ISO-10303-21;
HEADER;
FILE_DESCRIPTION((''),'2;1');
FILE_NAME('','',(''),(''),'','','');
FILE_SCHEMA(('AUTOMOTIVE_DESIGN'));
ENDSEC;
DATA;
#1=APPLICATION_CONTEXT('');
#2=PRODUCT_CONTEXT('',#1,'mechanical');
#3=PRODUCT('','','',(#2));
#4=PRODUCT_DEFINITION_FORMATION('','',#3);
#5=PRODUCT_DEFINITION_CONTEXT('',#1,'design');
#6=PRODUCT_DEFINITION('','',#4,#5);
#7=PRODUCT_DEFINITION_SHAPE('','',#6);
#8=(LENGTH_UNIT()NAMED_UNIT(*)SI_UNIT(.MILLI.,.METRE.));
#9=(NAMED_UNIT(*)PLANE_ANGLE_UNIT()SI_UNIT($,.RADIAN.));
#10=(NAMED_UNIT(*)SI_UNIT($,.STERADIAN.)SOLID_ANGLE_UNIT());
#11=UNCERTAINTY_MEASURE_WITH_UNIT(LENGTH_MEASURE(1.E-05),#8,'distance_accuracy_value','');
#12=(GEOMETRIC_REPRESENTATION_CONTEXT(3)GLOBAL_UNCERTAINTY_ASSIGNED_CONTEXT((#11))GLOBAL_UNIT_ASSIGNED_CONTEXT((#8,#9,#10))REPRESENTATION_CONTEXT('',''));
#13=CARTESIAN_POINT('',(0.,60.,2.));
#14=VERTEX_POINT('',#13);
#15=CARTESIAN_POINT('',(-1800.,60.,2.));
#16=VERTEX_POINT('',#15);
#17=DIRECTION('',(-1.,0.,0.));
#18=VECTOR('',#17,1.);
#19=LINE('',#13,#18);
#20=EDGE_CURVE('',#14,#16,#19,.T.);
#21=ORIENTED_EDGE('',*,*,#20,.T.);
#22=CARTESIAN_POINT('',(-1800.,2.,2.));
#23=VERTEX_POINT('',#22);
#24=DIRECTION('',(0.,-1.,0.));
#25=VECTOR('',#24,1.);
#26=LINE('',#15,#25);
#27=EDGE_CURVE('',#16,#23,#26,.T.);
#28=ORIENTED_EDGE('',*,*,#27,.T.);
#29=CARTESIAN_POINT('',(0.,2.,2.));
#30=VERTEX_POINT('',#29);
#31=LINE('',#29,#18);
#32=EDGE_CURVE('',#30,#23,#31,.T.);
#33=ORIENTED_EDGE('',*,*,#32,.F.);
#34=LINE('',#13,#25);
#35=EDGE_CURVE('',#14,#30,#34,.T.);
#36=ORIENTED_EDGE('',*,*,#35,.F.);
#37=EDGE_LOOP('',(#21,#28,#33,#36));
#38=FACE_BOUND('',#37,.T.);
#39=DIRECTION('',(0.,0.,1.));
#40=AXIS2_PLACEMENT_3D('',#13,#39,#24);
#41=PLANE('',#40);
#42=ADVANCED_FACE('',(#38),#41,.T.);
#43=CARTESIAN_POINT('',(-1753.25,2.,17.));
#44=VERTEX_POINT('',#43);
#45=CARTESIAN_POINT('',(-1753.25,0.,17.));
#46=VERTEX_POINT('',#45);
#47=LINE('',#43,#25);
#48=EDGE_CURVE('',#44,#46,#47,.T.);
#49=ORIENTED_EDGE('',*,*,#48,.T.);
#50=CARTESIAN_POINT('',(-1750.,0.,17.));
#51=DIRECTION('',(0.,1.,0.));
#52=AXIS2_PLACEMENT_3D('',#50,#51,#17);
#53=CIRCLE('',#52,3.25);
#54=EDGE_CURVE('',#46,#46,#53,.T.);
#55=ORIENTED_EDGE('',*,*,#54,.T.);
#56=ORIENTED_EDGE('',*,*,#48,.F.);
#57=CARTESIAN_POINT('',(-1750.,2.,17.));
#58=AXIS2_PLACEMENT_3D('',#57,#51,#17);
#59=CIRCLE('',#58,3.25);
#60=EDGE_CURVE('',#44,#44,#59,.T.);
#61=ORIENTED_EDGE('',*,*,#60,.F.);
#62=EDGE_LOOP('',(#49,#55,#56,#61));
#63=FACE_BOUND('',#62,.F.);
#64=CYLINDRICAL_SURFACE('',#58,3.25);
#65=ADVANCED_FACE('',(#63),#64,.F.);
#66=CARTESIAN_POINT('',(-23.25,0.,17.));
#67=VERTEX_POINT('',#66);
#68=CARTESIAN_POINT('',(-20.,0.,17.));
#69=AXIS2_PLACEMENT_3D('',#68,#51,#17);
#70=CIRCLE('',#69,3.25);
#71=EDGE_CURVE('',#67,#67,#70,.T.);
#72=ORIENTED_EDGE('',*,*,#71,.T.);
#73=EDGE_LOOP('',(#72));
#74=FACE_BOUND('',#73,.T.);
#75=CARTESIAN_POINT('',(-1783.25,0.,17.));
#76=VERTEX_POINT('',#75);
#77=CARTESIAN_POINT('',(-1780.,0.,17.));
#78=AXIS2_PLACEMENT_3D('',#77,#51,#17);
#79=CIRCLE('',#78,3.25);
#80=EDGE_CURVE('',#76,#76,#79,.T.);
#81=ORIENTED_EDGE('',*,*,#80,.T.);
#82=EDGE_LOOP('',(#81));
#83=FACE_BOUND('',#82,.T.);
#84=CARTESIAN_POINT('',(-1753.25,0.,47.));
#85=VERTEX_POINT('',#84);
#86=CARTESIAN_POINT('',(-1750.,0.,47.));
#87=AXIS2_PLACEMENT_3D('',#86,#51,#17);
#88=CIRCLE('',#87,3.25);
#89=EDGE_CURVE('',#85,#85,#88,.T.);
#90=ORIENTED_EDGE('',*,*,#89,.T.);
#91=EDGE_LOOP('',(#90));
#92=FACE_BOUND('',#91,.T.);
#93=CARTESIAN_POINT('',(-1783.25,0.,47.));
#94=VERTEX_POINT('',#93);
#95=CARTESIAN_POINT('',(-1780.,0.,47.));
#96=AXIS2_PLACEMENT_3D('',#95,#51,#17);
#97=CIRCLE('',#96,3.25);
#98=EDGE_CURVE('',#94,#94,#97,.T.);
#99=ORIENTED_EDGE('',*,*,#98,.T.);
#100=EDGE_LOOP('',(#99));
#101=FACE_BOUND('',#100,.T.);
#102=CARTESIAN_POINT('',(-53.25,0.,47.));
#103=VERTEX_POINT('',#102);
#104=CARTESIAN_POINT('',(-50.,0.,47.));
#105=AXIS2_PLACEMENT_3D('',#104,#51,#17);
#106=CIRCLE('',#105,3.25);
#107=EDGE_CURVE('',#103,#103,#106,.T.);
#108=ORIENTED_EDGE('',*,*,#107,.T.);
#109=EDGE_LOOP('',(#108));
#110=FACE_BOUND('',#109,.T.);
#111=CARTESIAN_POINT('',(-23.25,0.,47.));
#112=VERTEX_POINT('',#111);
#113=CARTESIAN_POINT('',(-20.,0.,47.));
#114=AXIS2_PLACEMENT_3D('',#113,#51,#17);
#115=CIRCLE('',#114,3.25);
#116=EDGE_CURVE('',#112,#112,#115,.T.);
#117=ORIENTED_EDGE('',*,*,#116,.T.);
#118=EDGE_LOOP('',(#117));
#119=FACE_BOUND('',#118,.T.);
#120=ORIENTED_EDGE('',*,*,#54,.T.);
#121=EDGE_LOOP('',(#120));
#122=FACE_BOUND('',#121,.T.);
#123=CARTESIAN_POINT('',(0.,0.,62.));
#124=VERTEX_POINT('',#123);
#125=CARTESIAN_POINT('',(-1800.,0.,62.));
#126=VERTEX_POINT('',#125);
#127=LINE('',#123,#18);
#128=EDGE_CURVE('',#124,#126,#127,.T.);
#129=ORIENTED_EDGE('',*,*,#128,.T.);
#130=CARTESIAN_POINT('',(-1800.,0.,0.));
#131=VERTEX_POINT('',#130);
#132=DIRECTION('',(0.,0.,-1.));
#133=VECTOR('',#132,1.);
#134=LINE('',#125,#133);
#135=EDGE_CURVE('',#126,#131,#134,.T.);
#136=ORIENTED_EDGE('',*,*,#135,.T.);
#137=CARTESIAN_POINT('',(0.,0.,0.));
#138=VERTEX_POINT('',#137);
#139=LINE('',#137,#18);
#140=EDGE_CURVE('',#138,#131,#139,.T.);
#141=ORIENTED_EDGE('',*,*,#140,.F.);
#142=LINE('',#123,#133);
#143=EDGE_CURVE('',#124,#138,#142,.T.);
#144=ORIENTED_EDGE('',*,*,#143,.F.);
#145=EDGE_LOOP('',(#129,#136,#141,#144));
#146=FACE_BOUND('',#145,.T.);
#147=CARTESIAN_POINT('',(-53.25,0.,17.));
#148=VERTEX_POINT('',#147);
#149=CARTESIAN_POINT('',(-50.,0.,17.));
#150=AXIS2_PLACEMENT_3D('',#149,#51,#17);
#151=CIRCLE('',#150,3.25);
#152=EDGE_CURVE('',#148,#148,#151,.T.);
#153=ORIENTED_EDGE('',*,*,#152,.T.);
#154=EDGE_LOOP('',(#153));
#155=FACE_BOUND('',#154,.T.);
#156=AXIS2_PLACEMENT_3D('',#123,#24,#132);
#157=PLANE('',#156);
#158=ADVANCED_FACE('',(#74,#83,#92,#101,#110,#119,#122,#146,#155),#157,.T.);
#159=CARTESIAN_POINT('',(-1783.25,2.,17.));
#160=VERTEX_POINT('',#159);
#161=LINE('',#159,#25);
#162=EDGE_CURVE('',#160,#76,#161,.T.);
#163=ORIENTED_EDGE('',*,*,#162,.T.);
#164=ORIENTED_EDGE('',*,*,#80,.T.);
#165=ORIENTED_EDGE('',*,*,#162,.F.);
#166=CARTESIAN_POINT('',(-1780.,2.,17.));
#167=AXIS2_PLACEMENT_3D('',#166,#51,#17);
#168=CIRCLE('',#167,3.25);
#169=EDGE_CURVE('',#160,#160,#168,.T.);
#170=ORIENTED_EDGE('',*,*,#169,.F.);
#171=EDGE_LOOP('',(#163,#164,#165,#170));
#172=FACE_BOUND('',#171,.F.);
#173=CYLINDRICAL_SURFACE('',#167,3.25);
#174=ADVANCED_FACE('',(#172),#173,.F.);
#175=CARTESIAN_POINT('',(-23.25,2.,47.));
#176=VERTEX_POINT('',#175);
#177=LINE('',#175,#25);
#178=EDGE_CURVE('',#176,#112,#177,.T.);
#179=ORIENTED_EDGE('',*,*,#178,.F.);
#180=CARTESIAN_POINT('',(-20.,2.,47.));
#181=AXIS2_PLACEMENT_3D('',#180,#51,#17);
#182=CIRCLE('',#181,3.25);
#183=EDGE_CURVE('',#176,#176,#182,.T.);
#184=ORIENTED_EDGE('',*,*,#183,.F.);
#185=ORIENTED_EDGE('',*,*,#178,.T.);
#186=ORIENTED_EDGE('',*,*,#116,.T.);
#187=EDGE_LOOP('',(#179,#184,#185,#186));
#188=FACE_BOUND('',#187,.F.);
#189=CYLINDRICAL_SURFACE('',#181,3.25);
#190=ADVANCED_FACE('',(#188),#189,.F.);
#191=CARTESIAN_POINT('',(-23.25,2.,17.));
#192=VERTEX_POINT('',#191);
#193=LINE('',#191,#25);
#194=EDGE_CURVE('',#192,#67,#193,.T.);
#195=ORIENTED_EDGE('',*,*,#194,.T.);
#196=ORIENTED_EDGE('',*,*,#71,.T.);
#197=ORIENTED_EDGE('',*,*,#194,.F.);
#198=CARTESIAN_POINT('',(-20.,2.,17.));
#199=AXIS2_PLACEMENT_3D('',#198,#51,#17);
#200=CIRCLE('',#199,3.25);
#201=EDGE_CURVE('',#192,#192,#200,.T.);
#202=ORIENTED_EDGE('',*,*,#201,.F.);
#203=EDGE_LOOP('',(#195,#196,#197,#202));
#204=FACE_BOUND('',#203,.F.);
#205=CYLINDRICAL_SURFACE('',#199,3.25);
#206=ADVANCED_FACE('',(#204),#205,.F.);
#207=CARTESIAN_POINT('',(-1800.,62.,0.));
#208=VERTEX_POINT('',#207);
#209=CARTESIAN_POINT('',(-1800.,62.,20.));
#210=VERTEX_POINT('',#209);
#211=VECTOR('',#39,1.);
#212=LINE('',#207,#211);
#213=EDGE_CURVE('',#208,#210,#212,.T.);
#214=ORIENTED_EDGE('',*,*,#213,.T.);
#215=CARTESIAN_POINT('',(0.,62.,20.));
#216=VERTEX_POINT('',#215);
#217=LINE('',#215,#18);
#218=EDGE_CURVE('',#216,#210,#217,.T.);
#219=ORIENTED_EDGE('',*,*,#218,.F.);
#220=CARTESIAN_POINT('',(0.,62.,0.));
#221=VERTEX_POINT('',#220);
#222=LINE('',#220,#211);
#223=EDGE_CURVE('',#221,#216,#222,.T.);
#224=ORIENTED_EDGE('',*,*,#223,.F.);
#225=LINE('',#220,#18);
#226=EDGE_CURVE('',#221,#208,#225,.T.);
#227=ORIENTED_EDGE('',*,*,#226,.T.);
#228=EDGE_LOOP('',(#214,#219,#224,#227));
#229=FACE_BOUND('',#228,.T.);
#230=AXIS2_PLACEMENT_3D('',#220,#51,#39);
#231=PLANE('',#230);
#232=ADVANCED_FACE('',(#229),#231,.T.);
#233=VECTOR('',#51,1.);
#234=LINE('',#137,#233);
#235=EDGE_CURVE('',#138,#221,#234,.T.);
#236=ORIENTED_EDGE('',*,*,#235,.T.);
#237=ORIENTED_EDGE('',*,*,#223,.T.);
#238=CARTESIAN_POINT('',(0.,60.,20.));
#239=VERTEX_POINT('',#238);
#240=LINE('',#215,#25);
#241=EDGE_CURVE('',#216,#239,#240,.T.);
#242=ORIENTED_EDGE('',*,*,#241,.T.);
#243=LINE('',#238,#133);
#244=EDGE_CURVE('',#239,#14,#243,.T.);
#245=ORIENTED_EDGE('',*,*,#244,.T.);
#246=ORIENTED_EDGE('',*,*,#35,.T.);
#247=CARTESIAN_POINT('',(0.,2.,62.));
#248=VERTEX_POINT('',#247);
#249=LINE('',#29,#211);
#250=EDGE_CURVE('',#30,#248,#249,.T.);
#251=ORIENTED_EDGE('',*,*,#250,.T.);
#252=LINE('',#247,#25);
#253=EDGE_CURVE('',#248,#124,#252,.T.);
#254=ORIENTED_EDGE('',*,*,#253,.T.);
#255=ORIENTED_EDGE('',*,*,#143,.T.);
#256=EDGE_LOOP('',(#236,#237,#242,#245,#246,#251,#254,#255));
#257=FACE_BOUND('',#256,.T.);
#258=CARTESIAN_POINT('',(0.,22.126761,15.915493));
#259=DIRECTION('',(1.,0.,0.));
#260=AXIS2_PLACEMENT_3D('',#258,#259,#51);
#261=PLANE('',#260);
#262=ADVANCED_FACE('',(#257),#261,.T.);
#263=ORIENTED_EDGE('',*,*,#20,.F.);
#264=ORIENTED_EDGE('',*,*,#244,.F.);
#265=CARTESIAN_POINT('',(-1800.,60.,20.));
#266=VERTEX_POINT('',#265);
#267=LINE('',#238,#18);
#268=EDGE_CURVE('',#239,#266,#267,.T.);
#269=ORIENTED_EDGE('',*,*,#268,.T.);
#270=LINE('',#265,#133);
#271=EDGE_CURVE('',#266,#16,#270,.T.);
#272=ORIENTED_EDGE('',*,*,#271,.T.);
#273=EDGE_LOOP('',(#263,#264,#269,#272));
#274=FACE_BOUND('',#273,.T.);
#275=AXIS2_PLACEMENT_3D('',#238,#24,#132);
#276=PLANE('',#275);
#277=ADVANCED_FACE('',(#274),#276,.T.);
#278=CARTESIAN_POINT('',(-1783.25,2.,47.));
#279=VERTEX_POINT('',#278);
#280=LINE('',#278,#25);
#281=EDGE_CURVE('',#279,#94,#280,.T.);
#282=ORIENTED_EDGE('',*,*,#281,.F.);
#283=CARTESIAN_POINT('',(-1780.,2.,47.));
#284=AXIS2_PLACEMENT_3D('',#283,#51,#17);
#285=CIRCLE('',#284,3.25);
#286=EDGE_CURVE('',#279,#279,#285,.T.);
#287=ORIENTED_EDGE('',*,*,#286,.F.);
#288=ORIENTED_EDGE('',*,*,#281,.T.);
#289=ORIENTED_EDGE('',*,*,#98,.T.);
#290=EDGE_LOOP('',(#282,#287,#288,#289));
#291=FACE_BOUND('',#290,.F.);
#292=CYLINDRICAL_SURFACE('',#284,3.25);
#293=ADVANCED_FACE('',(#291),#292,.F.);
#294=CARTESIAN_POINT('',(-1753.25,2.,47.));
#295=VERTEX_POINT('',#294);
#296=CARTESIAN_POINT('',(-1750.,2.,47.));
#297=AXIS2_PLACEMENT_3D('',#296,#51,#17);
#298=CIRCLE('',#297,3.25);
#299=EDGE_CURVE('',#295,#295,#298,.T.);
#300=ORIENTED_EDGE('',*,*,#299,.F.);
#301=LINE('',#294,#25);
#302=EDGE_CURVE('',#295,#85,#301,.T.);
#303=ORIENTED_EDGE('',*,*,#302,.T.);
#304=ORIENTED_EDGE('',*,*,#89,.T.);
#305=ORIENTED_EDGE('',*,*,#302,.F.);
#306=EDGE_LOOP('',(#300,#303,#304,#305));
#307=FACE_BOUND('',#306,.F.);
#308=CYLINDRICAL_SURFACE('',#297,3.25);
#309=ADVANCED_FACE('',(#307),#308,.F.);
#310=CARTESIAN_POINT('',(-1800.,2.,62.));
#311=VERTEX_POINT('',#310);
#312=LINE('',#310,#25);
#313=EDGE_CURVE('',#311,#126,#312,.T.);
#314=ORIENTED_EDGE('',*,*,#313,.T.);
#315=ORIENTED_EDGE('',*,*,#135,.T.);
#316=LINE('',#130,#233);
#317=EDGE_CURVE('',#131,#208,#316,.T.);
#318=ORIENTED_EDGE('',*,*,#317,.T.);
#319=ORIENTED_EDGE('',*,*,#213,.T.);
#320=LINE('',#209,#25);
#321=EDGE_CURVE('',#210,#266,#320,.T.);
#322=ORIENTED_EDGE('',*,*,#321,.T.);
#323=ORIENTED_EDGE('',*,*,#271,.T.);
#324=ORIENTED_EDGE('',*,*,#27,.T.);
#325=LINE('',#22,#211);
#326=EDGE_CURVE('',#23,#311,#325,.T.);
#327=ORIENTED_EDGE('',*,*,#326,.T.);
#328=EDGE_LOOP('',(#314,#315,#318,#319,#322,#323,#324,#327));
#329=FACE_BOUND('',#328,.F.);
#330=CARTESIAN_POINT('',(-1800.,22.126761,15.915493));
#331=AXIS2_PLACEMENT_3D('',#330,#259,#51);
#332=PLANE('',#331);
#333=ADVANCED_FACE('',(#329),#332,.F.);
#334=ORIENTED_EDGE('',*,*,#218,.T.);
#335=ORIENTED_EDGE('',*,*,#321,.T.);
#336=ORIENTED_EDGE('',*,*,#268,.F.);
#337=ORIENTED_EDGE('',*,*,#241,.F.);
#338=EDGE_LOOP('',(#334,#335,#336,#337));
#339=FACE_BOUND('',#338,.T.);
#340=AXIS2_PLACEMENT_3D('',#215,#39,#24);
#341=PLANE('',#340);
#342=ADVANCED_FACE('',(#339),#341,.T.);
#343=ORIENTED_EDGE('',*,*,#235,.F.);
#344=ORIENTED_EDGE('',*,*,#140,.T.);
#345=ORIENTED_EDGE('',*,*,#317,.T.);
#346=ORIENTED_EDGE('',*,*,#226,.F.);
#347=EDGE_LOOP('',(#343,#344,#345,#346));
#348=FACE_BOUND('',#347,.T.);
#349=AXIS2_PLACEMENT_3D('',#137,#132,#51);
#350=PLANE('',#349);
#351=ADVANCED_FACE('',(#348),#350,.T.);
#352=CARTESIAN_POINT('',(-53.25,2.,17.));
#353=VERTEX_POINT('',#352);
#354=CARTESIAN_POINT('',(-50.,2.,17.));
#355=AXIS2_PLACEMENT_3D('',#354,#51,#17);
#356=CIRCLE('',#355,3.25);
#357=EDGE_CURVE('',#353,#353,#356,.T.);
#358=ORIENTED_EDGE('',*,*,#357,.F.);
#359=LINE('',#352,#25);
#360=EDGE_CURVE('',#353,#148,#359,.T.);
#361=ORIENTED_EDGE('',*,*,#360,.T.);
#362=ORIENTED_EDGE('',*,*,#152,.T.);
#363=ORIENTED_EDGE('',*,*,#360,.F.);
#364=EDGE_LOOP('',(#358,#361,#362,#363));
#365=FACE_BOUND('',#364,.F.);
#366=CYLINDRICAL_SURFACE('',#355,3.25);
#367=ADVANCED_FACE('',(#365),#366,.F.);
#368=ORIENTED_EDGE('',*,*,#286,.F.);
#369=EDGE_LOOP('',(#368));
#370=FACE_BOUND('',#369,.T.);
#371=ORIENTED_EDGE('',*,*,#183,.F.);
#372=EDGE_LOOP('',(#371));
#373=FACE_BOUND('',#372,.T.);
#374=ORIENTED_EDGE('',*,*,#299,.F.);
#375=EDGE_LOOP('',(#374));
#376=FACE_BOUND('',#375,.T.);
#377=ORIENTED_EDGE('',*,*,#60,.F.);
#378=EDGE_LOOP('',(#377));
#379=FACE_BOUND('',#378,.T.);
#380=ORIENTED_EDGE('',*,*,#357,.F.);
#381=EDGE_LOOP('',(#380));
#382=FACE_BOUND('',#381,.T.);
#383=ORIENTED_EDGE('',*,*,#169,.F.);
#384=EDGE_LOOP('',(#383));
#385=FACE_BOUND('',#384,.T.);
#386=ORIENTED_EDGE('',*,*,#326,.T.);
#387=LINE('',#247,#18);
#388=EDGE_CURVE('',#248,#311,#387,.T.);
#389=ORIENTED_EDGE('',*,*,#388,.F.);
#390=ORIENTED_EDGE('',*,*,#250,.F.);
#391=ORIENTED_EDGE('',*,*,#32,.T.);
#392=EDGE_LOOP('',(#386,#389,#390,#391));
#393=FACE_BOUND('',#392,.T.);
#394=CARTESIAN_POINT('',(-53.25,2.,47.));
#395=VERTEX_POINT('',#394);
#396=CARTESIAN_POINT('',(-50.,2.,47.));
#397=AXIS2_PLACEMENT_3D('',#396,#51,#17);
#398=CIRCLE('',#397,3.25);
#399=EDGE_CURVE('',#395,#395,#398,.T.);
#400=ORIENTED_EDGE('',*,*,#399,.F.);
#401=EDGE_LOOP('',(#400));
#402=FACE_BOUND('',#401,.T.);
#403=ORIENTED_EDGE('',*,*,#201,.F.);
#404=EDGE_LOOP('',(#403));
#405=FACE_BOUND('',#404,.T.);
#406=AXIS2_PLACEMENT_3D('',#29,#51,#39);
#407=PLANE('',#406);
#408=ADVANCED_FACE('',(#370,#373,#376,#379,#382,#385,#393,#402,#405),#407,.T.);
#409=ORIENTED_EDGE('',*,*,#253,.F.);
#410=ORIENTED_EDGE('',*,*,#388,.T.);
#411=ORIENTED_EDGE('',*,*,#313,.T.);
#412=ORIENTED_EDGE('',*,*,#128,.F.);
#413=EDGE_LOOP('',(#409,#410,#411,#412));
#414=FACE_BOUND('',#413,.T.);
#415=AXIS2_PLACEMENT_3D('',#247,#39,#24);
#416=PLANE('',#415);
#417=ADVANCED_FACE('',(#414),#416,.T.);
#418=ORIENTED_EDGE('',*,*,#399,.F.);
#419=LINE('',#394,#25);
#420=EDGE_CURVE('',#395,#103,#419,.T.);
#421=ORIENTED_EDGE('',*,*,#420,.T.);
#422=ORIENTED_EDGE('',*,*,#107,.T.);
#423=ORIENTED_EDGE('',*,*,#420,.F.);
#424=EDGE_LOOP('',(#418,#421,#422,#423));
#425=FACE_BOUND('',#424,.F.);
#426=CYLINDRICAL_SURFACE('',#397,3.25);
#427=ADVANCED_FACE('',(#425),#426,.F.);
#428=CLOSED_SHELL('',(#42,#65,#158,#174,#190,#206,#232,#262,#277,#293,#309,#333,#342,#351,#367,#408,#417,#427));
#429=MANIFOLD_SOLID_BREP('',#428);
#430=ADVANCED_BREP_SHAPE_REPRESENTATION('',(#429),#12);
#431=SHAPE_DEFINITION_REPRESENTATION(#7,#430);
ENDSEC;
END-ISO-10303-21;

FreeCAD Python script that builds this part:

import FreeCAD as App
import Part
import Sketcher
Q = App.Units.Quantity


def add_polygon(sketch, points):
    """Adds a closed chain of lines whose ends are joined by coincident constraints."""
    first, n = sketch.GeometryCount, len(points)
    for a, b in zip(points, points[1:] + points[:1]):
        sketch.addGeometry(Part.LineSegment(App.Vector(*a, 0), App.Vector(*b, 0)), False)
    for i in range(n):
        sketch.addConstraint(Sketcher.Constraint("Coincident", first + i, 2, first + (i + 1) % n, 1))

doc = App.newDocument("Part")
body = doc.addObject("PartDesign::Body", "Body")

# Sketch on YZ plane
sketch1 = body.newObject("Sketcher::SketchObject", "Sketch")
sketch1.AttachmentSupport = (doc.getObject("YZ_Plane"), [""])
sketch1.MapMode = "FlatFace"
add_polygon(sketch1, [(0, 62), (0, 0), (62, 0), (62, 20), (60, 20), (60, 2), (2, 2), (2, 62)])  # lines 0-7
sketch1.addConstraint(Sketcher.Constraint("Vertical", 0))
sketch1.addConstraint(Sketcher.Constraint("Horizontal", 1))
sketch1.addConstraint(Sketcher.Constraint("Vertical", 2))
sketch1.addConstraint(Sketcher.Constraint("Horizontal", 3))
sketch1.addConstraint(Sketcher.Constraint("Vertical", 4))
sketch1.addConstraint(Sketcher.Constraint("Horizontal", 5))
sketch1.addConstraint(Sketcher.Constraint("Vertical", 6))
sketch1.addConstraint(Sketcher.Constraint("Horizontal", 7))
sketch1.addConstraint(Sketcher.Constraint("Coincident", 0, 2, -1, 1))
sketch1.addConstraint(Sketcher.Constraint("Equal", 3, 7))
sketch1.addConstraint(Sketcher.Constraint("Equal", 1, 0))
sketch1.addConstraint(Sketcher.Constraint("DistanceX", 1, 1, 1, 2, Q("62 mm")))
sketch1.addConstraint(Sketcher.Constraint("DistanceX", 3, 2, 3, 1, Q("2 mm")))
sketch1.addConstraint(Sketcher.Constraint("DistanceY", 2, 1, 2, 2, Q("20 mm")))
sketch1.addConstraint(Sketcher.Constraint("DistanceY", 4, 2, 4, 1, Q("18 mm")))
pad1 = body.newObject("PartDesign::Pad", "Pad")
pad1.Profile = sketch1
pad1.Length = 1800
pad1.Reversed = True

# Sketch on XZ plane
sketch2 = body.newObject("Sketcher::SketchObject", "Sketch001")
sketch2.AttachmentSupport = (doc.getObject("XZ_Plane"), [""])
sketch2.MapMode = "FlatFace"
sketch2.AttachmentOffset = App.Placement(App.Vector(0, 0, -2), App.Rotation())
sketch2.addGeometry(Part.Circle(App.Vector(-20, 47, 0), App.Vector(0, 0, 1), 3.2), False)
sketch2.addGeometry(Part.Circle(App.Vector(-50, 47, 0), App.Vector(0, 0, 1), 3.2), False)
sketch2.addGeometry(Part.Circle(App.Vector(-20, 17, 0), App.Vector(0, 0, 1), 3.2), False)
sketch2.addGeometry(Part.Circle(App.Vector(-50, 17, 0), App.Vector(0, 0, 1), 3.2), False)
sketch2.addGeometry(Part.Circle(App.Vector(-1750, 47, 0), App.Vector(0, 0, 1), 3.2), False)
sketch2.addGeometry(Part.Circle(App.Vector(-1780, 47, 0), App.Vector(0, 0, 1), 3.2), False)
sketch2.addGeometry(Part.Circle(App.Vector(-1780, 17, 0), App.Vector(0, 0, 1), 3.2), False)
sketch2.addGeometry(Part.Circle(App.Vector(-1750, 17, 0), App.Vector(0, 0, 1), 3.2), False)
sketch2.addConstraint(Sketcher.Constraint("Equal", 0, 1))
sketch2.addConstraint(Sketcher.Constraint("Equal", 1, 2))
sketch2.addConstraint(Sketcher.Constraint("Equal", 2, 3))
sketch2.addConstraint(Sketcher.Constraint("Equal", 3, 4))
sketch2.addConstraint(Sketcher.Constraint("Equal", 4, 5))
sketch2.addConstraint(Sketcher.Constraint("Equal", 5, 6))
sketch2.addConstraint(Sketcher.Constraint("Equal", 6, 7))
sketch2.addConstraint(Sketcher.Constraint("Horizontal", 0, 3, 1, 3))
sketch2.addConstraint(Sketcher.Constraint("Horizontal", 2, 3, 3, 3))
sketch2.addConstraint(Sketcher.Constraint("Horizontal", 1, 3, 4, 3))
sketch2.addConstraint(Sketcher.Constraint("Horizontal", 4, 3, 5, 3))
sketch2.addConstraint(Sketcher.Constraint("Horizontal", 3, 3, 6, 3))
sketch2.addConstraint(Sketcher.Constraint("Horizontal", 6, 3, 7, 3))
sketch2.addConstraint(Sketcher.Constraint("Vertical", 0, 3, 2, 3))
sketch2.addConstraint(Sketcher.Constraint("Vertical", 1, 3, 3, 3))
sketch2.addConstraint(Sketcher.Constraint("Vertical", 5, 3, 6, 3))
sketch2.addConstraint(Sketcher.Constraint("Vertical", 4, 3, 7, 3))
sketch2.addConstraint(Sketcher.Constraint("Diameter", 0, Q("6.5 mm")))
sketch2.addConstraint(Sketcher.Constraint("DistanceX", 0, 3, -1, 1, Q("20 mm")))
sketch2.addConstraint(Sketcher.Constraint("DistanceY", -1, 1, 0, 3, Q("47 mm")))
sketch2.addConstraint(Sketcher.Constraint("DistanceX", 1, 3, -1, 1, Q("50 mm")))
sketch2.addConstraint(Sketcher.Constraint("DistanceY", -1, 1, 2, 3, Q("17 mm")))
sketch2.addConstraint(Sketcher.Constraint("DistanceX", 4, 3, -1, 1, Q("1750 mm")))
sketch2.addConstraint(Sketcher.Constraint("DistanceX", 5, 3, -1, 1, Q("1780 mm")))
pocket1 = body.newObject("PartDesign::Pocket", "Pocket")
pocket1.Profile = sketch2
pocket1.Length = 25
pocket1.Reversed = True

doc.recompute()
